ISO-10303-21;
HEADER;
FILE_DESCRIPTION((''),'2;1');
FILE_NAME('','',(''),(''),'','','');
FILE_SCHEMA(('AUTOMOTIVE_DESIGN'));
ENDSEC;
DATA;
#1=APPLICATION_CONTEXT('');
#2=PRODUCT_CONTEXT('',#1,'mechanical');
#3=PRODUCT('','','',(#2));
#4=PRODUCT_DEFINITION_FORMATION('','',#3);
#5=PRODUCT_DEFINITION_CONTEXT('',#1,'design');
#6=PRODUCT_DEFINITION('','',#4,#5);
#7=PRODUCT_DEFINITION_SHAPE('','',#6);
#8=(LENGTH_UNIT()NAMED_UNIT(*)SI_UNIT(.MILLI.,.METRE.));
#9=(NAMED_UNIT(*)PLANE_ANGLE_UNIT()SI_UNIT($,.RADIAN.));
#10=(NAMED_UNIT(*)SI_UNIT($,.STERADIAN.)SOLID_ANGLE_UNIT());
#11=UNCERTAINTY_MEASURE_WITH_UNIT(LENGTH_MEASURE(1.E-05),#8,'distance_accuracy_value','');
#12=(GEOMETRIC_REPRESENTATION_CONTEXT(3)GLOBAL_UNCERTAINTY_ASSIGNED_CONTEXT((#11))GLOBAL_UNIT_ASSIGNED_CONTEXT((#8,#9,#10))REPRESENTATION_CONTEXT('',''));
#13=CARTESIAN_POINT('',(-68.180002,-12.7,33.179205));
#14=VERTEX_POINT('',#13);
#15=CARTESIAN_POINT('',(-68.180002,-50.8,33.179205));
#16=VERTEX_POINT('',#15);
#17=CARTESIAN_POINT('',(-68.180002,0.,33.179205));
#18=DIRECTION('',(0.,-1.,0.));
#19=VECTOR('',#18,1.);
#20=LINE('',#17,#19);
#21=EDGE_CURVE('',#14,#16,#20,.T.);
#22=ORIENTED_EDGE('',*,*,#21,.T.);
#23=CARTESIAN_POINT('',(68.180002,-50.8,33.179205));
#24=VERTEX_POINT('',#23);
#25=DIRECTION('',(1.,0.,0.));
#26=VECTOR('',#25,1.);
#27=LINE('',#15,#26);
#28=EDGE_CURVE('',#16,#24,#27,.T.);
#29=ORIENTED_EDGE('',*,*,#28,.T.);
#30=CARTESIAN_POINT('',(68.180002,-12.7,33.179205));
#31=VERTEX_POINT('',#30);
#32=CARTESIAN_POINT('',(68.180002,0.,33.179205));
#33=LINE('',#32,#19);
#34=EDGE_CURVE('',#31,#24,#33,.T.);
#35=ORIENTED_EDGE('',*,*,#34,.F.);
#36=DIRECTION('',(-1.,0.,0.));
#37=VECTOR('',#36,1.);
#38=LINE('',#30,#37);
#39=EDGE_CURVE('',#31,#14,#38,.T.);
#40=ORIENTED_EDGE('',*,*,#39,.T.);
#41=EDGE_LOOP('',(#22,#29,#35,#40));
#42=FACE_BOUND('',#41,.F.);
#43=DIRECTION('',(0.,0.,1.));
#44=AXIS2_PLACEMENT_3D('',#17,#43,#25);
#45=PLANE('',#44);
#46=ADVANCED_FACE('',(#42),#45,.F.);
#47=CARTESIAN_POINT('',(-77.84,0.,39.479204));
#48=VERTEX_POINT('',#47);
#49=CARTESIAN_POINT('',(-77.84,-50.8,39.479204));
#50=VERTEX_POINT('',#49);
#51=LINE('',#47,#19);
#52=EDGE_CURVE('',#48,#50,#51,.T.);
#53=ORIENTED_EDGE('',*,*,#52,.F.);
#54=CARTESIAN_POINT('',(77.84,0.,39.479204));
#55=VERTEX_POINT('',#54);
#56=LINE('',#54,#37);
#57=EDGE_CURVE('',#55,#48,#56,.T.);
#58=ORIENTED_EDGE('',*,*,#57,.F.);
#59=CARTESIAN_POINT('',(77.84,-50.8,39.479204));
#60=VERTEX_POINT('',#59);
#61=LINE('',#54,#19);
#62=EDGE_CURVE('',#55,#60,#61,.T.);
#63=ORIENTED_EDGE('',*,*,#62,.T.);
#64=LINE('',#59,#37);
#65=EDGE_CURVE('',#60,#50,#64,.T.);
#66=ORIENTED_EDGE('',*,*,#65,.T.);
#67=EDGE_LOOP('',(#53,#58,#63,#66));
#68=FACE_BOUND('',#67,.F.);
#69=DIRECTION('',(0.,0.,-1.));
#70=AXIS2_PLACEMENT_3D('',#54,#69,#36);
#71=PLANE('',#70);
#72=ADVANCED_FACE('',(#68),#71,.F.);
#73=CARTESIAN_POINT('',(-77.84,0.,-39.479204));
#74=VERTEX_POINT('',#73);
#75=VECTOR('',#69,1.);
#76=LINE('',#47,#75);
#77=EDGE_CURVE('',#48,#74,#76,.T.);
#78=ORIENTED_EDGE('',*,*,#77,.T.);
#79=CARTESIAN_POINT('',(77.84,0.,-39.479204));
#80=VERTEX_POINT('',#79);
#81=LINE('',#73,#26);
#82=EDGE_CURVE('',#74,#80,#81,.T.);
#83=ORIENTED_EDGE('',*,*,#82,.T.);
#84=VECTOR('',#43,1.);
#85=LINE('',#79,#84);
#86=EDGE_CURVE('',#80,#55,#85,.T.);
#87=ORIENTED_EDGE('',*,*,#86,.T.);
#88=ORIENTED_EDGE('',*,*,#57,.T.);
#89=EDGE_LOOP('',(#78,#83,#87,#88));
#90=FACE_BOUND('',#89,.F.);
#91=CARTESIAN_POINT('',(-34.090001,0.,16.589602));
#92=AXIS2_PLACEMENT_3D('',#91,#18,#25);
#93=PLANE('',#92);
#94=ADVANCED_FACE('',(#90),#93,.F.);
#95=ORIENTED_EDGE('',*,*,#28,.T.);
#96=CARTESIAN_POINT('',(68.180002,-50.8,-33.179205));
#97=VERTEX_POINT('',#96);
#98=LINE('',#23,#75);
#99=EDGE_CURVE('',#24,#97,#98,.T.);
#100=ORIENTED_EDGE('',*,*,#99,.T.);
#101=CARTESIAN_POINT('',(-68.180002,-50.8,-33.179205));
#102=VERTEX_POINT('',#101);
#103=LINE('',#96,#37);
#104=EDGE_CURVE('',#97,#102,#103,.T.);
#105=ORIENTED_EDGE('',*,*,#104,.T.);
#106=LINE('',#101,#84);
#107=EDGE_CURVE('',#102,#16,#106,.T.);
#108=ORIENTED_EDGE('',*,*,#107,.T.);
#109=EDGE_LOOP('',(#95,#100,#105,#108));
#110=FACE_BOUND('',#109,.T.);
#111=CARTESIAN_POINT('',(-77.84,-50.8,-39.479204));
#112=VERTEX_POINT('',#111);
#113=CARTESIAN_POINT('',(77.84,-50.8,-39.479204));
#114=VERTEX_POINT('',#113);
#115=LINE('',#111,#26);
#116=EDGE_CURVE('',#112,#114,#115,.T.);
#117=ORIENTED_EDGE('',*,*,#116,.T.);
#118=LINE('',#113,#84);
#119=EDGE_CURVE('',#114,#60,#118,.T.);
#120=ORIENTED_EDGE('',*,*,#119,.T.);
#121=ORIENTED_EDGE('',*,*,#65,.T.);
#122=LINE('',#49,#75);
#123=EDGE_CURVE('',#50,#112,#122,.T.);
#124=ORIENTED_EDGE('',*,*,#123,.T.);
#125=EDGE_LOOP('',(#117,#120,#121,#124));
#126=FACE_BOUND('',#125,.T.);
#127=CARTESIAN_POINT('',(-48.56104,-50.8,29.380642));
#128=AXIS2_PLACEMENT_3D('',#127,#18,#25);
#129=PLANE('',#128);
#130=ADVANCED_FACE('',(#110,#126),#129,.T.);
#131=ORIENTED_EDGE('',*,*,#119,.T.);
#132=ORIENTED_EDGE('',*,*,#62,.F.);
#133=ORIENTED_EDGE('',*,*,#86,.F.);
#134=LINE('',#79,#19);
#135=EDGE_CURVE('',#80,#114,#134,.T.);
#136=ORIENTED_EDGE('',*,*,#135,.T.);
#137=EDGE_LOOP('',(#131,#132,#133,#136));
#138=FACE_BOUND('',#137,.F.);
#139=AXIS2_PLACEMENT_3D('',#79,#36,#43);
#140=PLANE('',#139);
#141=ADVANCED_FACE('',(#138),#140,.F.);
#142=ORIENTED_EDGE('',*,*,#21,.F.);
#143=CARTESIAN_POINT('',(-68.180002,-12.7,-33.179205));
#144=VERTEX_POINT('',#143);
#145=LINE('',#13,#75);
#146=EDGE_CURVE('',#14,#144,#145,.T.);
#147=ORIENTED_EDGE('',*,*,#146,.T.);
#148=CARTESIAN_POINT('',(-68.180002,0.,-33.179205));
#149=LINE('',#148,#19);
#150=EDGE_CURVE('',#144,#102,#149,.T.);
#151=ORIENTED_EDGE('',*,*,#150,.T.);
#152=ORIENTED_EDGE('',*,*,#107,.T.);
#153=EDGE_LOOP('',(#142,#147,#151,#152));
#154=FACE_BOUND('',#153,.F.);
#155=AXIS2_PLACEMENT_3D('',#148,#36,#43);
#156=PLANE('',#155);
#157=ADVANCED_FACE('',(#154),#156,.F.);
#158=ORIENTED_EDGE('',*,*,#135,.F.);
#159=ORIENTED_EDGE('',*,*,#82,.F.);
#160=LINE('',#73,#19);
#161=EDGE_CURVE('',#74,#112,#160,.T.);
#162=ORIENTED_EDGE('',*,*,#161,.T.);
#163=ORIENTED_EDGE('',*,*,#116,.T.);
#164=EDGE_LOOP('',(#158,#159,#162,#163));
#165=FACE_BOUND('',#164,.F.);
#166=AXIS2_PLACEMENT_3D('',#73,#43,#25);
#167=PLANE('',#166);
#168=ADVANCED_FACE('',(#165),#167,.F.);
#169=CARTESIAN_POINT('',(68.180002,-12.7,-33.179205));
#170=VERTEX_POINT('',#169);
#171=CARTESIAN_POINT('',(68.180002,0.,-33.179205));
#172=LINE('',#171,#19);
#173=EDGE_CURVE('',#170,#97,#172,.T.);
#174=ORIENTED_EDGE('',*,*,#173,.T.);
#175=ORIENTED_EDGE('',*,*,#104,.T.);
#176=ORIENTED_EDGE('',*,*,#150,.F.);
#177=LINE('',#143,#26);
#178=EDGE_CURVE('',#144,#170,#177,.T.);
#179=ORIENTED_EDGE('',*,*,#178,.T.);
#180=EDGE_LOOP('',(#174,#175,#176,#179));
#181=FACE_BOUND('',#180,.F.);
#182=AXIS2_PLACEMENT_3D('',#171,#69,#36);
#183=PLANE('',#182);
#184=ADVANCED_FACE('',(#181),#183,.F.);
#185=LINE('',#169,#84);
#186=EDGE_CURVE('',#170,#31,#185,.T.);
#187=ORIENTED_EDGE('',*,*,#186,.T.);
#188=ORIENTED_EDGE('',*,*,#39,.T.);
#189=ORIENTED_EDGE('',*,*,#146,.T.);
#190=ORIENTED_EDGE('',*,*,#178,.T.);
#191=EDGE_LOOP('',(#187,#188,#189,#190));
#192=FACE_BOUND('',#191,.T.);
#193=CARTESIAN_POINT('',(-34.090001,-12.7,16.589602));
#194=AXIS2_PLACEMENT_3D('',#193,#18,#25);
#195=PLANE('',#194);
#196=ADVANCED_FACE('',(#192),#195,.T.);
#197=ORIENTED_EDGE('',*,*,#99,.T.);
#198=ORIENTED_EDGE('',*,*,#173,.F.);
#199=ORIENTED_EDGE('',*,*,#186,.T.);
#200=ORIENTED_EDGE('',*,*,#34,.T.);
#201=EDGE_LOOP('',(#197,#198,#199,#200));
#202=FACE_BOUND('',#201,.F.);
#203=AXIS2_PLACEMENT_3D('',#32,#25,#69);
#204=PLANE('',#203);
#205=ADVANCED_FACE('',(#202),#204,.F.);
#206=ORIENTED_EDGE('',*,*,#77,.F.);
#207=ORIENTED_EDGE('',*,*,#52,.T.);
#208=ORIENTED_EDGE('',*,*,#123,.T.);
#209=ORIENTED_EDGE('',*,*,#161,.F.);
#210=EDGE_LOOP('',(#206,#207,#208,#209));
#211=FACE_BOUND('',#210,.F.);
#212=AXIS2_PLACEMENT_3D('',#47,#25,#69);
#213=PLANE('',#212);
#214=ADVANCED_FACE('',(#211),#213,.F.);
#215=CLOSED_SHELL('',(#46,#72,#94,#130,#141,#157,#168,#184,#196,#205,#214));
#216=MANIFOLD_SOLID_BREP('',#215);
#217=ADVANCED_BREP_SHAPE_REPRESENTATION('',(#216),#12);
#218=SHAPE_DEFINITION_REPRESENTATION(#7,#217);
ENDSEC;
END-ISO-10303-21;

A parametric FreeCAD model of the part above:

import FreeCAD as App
import Part
import Sketcher

V = App.Vector
Q = App.Units.Quantity


def add_polygon(sketch, points):
    """Adds a closed chain of lines whose ends are joined by coincident constraints."""
    first, n = sketch.GeometryCount, len(points)
    for a, b in zip(points, points[1:] + points[:1]):
        sketch.addGeometry(Part.LineSegment(App.Vector(*a, 0), App.Vector(*b, 0)), False)
    for i in range(n):
        sketch.addConstraint(Sketcher.Constraint("Coincident", first + i, 2, first + (i + 1) % n, 1))

doc = App.newDocument("Part")
body = doc.addObject("PartDesign::Body", "Body")

sketch1 = body.newObject("Sketcher::SketchObject", "Sketch")
sketch1.AttachmentSupport = (doc.getObject("XZ_Plane"), [""])
sketch1.MapMode = "FlatFace"
add_polygon(sketch1, [(78, 39), (-78, 39), (-78, -39), (78, -39)])
add_polygon(sketch1, [(-68, 33), (68, 33), (68, -33), (-68, -33)])
sketch1.addConstraint([
    Sketcher.Constraint("Horizontal", 0),
    Sketcher.Constraint("Vertical", 1),
    Sketcher.Constraint("Horizontal", 2),
    Sketcher.Constraint("Vertical", 3),
    Sketcher.Constraint("Horizontal", 4),
    Sketcher.Constraint("Vertical", 5),
    Sketcher.Constraint("Horizontal", 6),
    Sketcher.Constraint("Vertical", 7),
    Sketcher.Constraint("Symmetric", 0, 2, 2, 2, -1, 1),
    Sketcher.Constraint("Symmetric", 4, 2, 6, 2, -1, 1),
    Sketcher.Constraint("DistanceX", 0, 2, 0, 1, Q("155.680001 mm")),
    Sketcher.Constraint("DistanceY", 5, 2, 5, 1, Q("66.35841 mm")),
    Sketcher.Constraint("DistanceX", 4, 2, 3, 2, Q("9.659998 mm")),
    Sketcher.Constraint("DistanceY", 4, 2, 3, 2, Q("6.299999 mm")),
])
pad1 = body.newObject("PartDesign::Pad", "Pad")
pad1.Profile = sketch1
pad1.Length = Q("2 in")

sketch2 = body.newObject("Sketcher::SketchObject", "Sketch001")
sketch2.AttachmentSupport = (doc.getObject("XZ_Plane"), [""])
sketch2.MapMode = "FlatFace"
add_polygon(sketch2, [(-68, 33), (-68, -33), (68, -33), (68, 33)])
sketch2.addConstraint([
    Sketcher.Constraint("Vertical", 0),
    Sketcher.Constraint("Horizontal", 1),
    Sketcher.Constraint("Vertical", 2),
    Sketcher.Constraint("Horizontal", 3),
    Sketcher.Constraint("Symmetric", 0, 2, 2, 2, -1, 1),
    Sketcher.Constraint("DistanceY", 0, 2, 0, 1, Q("66.35841 mm")),
    Sketcher.Constraint("DistanceX", 1, 1, 1, 2, Q("136.360005 mm")),
])
pad2 = body.newObject("PartDesign::Pad", "Pad001")
pad2.Profile = sketch2
pad2.Length = Q("0.5 in")

doc.recompute()
